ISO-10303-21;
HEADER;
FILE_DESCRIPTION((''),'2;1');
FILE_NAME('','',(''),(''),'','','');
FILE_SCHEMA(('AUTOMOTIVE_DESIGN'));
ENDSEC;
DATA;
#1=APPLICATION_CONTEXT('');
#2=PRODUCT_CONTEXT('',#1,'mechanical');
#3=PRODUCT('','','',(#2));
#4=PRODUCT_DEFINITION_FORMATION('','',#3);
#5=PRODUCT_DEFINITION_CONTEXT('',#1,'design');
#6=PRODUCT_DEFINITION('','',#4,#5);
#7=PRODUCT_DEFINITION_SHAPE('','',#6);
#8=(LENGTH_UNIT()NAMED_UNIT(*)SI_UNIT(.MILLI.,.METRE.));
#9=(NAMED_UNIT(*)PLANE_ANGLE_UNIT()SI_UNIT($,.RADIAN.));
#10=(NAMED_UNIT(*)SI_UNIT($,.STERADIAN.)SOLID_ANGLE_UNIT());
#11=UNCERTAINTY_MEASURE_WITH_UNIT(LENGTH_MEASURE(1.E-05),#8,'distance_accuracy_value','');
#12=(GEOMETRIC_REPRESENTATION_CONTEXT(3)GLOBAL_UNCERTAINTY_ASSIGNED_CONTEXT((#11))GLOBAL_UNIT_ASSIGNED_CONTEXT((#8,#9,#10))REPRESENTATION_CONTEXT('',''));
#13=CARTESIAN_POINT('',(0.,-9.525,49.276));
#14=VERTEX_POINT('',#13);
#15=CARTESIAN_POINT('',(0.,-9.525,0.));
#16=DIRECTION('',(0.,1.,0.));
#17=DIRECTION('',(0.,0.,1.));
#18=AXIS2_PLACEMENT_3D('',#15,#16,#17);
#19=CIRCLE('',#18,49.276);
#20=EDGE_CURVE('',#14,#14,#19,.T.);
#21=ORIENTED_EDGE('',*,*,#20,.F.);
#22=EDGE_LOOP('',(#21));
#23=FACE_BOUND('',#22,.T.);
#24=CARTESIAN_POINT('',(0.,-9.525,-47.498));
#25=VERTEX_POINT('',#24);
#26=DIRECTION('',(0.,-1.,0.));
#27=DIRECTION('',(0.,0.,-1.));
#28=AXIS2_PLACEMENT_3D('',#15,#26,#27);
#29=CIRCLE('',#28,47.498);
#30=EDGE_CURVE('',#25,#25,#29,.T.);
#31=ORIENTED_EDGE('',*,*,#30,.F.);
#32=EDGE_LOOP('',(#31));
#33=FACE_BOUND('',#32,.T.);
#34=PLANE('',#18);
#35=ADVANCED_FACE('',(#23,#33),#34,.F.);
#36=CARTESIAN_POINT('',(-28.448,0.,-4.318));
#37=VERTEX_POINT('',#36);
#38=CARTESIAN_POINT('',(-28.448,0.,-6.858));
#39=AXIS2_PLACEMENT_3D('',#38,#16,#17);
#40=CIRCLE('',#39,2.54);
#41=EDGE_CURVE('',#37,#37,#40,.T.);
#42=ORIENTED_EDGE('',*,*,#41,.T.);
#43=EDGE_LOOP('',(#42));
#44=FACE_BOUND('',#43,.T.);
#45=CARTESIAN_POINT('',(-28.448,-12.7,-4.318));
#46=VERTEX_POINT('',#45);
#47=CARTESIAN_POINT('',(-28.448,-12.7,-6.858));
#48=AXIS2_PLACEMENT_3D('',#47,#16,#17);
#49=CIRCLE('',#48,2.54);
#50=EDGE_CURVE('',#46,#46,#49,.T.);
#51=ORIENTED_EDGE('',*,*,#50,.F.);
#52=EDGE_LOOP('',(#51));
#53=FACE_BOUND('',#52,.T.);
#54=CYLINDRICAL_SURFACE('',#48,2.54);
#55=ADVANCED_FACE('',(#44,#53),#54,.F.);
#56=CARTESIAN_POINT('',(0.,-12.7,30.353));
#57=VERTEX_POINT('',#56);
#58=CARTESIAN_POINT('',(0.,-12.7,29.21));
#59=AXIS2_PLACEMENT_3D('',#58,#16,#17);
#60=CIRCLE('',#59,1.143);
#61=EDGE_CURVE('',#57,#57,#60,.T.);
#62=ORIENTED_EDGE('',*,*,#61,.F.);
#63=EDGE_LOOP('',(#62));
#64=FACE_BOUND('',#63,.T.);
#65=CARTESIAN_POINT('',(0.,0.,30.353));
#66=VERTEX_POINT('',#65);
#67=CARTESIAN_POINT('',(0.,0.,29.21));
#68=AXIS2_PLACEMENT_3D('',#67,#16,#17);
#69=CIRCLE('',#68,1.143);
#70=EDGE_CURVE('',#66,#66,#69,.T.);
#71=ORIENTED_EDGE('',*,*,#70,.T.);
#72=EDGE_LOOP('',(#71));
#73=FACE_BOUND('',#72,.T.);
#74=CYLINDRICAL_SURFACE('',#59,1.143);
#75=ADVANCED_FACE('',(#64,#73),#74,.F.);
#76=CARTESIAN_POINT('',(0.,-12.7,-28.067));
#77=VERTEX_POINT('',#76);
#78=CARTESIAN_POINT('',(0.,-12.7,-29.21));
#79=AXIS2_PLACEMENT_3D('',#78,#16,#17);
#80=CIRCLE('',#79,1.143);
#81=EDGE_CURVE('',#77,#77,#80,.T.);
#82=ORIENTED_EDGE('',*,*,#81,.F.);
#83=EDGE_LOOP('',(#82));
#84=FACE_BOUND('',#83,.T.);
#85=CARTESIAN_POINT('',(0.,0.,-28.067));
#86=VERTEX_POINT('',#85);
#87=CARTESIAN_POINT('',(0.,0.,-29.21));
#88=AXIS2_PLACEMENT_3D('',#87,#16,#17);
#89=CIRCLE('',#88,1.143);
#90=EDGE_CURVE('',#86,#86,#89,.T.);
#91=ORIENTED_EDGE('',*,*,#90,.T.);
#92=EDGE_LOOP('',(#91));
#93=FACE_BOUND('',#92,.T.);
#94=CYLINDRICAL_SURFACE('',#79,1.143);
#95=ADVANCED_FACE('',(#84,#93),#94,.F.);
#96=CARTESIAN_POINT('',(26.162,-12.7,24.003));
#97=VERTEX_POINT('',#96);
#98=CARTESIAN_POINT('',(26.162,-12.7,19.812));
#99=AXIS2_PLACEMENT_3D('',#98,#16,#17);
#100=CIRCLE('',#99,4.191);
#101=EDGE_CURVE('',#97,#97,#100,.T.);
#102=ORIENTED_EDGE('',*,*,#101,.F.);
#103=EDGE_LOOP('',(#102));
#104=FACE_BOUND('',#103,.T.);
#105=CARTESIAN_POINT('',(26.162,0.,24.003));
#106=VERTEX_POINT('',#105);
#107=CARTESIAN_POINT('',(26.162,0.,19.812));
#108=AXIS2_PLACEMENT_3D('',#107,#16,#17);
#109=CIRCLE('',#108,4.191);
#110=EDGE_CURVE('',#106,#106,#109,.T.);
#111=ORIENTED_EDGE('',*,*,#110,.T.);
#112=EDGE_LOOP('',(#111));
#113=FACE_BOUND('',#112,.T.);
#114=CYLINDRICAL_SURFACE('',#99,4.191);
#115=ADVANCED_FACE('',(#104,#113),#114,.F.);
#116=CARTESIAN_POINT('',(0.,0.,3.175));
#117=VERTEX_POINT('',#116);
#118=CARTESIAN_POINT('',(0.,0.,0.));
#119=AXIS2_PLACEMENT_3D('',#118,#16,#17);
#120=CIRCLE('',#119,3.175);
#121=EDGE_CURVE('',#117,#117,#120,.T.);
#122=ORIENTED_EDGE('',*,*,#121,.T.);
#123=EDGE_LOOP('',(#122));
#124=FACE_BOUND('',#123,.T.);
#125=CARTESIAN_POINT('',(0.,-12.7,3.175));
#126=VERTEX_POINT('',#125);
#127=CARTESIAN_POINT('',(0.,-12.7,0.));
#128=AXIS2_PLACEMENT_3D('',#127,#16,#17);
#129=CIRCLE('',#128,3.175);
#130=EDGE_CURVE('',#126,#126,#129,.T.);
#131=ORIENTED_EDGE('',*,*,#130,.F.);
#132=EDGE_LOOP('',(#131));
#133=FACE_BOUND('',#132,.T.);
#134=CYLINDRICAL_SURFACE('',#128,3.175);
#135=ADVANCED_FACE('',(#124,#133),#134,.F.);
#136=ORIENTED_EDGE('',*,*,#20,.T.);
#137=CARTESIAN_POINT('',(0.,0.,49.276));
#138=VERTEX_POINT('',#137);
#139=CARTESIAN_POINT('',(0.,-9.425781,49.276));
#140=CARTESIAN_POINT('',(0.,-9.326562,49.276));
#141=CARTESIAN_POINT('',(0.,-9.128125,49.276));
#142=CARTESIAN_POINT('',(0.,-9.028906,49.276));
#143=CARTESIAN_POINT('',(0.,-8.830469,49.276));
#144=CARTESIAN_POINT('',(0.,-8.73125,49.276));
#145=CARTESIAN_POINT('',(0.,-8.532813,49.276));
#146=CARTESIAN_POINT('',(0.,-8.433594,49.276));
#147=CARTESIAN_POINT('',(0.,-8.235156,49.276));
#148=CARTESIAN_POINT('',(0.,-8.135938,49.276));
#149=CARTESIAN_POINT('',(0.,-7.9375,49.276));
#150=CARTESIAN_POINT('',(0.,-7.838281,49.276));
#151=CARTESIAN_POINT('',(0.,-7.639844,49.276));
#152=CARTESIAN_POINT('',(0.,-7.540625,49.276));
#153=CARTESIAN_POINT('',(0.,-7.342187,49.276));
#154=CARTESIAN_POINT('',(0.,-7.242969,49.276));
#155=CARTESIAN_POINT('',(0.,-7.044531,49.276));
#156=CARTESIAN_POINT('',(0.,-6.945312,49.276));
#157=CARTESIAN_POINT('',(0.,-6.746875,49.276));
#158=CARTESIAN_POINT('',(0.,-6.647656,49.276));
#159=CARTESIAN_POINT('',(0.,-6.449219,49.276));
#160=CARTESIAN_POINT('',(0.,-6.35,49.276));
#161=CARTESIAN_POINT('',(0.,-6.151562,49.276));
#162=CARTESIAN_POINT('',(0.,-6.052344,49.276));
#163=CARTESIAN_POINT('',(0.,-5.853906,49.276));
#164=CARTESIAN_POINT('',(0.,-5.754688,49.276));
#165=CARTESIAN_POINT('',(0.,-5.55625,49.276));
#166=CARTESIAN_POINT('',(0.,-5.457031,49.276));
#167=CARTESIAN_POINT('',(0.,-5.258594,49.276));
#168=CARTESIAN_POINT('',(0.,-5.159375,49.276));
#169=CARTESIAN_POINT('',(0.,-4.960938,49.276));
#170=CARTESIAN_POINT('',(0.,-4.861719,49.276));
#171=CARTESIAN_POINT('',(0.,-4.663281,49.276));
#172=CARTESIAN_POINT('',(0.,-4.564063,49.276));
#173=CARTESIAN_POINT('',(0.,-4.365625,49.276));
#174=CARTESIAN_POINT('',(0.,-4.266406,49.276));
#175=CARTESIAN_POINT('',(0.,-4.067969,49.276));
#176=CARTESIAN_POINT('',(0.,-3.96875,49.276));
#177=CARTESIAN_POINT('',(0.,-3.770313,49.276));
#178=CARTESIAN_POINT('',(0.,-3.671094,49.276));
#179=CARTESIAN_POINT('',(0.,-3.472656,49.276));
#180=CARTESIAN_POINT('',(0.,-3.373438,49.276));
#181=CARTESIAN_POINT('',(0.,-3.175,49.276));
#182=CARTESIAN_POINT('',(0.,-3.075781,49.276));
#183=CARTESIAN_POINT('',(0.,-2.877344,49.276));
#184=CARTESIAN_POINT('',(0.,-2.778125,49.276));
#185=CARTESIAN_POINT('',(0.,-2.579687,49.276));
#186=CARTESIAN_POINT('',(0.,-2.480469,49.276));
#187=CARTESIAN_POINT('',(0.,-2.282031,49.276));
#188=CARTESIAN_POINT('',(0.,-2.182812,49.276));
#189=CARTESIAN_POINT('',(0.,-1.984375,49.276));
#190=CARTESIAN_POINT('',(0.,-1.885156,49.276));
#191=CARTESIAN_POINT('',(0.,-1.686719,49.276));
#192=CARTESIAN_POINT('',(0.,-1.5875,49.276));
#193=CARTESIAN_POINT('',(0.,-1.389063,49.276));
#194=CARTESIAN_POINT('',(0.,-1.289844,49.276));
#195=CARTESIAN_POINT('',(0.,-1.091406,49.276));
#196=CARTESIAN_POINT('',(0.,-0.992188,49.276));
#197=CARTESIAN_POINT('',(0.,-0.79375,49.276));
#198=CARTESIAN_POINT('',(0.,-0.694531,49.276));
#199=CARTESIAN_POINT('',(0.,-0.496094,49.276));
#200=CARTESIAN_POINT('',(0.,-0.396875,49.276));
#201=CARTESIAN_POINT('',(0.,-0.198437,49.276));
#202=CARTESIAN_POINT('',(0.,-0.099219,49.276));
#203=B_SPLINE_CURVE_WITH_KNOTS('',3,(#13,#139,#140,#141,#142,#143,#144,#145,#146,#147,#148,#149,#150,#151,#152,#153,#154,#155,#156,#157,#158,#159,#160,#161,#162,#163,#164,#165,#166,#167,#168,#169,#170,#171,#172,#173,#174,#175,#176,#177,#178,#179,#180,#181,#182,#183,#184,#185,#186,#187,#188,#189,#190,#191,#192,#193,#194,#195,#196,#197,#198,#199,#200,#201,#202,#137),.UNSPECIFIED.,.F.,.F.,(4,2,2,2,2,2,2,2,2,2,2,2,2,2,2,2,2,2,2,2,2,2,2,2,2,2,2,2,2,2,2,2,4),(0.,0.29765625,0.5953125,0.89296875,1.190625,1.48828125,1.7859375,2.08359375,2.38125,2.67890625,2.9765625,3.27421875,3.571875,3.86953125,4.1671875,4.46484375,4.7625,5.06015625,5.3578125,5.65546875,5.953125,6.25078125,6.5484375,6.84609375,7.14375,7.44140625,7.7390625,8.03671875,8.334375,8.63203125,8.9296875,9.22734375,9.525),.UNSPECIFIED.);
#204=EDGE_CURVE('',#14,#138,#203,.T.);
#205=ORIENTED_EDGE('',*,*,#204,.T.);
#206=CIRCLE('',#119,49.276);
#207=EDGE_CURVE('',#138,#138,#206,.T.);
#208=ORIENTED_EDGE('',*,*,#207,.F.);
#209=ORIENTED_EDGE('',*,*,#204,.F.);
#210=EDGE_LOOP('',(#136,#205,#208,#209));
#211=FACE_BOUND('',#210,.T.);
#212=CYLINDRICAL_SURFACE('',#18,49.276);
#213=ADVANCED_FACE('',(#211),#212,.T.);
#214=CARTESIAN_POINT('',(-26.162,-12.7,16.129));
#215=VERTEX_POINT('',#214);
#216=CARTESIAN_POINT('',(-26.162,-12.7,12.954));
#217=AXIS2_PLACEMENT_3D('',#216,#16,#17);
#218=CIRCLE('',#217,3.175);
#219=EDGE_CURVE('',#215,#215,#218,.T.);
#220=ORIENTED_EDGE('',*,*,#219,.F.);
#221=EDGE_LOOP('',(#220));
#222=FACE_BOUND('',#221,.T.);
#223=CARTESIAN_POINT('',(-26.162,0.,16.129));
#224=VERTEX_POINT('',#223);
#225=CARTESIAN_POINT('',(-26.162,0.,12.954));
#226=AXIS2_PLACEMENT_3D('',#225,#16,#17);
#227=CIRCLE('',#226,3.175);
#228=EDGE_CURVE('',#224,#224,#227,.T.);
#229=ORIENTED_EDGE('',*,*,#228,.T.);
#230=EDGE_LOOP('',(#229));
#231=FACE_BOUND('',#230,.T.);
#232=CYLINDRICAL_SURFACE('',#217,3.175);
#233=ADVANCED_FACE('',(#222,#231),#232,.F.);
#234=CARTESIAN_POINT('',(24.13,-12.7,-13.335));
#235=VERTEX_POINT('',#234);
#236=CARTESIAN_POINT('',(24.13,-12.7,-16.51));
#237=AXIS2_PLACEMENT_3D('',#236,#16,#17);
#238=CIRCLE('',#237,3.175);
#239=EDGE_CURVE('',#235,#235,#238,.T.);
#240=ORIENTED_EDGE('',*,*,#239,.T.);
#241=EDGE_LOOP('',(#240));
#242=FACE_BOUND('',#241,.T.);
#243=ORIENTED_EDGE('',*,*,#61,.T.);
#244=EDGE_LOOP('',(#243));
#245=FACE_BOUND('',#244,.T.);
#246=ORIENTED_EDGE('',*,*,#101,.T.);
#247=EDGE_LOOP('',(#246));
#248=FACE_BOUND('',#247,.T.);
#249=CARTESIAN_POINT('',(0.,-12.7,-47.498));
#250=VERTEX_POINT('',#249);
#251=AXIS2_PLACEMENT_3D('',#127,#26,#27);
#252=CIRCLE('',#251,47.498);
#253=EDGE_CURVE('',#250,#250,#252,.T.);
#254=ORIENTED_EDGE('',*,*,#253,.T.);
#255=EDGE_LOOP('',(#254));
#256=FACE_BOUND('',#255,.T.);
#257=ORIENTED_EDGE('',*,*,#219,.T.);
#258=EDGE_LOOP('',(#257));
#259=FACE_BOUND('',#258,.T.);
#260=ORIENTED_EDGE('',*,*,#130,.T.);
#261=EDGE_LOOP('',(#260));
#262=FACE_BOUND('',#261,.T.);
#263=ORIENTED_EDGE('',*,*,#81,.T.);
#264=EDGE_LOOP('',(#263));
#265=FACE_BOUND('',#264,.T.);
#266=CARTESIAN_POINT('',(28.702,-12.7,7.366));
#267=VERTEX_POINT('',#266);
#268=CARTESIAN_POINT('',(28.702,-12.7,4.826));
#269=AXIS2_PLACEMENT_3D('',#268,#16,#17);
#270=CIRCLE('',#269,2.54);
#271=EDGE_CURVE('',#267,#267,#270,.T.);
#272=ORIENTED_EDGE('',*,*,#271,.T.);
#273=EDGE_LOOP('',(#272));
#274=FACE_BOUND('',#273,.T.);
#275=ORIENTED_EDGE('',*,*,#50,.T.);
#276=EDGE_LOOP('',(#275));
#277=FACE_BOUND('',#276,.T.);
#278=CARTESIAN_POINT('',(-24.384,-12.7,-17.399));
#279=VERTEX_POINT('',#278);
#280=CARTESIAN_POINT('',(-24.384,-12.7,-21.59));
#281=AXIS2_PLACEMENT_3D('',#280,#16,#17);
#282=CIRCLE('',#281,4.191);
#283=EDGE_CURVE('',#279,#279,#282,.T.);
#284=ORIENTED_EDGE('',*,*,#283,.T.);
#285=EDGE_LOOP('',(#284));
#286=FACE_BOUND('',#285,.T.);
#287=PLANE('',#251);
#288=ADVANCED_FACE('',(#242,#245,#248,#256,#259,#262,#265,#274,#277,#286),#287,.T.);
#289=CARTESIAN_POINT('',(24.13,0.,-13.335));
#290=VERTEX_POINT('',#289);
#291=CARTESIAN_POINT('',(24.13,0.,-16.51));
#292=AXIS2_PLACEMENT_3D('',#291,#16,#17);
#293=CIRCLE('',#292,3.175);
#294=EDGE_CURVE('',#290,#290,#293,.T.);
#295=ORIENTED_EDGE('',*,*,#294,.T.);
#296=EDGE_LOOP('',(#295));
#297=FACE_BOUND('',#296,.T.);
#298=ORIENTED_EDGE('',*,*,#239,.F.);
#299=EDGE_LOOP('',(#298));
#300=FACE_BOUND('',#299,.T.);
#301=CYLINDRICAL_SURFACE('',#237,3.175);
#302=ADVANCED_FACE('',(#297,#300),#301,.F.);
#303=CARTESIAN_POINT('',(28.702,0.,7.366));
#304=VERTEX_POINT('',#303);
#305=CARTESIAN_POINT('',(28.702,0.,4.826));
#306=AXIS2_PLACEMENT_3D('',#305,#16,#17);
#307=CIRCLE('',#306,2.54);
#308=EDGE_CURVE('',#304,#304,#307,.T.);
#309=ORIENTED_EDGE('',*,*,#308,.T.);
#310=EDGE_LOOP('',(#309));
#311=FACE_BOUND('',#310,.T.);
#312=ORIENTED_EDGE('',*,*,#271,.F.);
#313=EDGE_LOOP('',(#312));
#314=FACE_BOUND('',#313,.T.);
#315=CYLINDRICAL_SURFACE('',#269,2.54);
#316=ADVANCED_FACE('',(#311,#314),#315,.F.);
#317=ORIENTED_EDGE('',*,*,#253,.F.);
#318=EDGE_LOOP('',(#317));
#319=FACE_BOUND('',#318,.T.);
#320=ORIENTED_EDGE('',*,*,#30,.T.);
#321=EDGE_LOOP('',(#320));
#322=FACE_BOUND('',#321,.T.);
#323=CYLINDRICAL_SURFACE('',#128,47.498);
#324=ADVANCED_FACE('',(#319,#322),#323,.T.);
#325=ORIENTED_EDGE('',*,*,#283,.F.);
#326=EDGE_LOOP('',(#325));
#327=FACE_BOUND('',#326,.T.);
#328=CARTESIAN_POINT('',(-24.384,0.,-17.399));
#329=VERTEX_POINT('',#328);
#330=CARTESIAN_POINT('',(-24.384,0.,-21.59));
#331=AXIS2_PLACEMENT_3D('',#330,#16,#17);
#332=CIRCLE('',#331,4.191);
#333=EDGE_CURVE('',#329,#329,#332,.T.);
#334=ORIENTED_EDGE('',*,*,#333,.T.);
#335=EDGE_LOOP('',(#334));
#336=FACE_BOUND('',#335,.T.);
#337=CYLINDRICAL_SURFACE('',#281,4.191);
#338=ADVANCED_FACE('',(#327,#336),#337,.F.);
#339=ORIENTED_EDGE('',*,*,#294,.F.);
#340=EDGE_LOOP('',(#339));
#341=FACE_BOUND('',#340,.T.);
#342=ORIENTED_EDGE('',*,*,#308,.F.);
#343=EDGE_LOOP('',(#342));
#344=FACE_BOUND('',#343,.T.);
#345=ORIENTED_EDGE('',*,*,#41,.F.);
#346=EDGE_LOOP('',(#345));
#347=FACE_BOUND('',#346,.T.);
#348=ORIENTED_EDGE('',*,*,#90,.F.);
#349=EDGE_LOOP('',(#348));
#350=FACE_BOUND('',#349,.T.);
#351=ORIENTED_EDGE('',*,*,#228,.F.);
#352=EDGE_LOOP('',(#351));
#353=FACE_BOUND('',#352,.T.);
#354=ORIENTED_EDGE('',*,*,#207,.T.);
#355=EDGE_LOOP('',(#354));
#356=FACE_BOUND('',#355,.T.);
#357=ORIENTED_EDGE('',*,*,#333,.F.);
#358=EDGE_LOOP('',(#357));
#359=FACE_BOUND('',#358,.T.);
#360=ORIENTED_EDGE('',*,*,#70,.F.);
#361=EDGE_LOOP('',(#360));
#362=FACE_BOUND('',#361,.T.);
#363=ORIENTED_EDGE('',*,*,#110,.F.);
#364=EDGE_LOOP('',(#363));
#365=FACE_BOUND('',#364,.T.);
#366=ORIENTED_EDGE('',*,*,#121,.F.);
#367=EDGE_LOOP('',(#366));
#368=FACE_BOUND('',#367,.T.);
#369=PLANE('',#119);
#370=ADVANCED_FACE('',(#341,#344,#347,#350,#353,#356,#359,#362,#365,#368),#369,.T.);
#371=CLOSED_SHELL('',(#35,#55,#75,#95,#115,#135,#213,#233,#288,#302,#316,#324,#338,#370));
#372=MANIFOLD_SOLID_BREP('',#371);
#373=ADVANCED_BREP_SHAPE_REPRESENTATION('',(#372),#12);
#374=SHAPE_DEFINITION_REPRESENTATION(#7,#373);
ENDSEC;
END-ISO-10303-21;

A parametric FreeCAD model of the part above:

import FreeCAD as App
import Part
import Sketcher
from FreeCAD import Vector
Q = App.Units.Quantity

doc = App.newDocument("Part")
body = doc.addObject("PartDesign::Body", "Body")

sketch1 = body.newObject("Sketcher::SketchObject", "Sketch")
sketch1.AttachmentSupport = (doc.getObject("XZ_Plane"), [""])
sketch1.MapMode = "FlatFace"
sketch1.addGeometry(Part.Circle(Vector(0, 0, 0), Vector(0, 0, 1), 49.276), False)
sketch1.addConstraint(Sketcher.Constraint("Coincident", 0, 3, -1, 1))
sketch1.addConstraint(Sketcher.Constraint("Diameter", 0, Q("3.88 in")))
pad1 = body.newObject("PartDesign::Pad", "Pad")
pad1.Profile = sketch1
pad1.Length = Q("0.375 in")

sketch2 = body.newObject("Sketcher::SketchObject", "Sketch001")
sketch2.AttachmentSupport = (doc.getObject("XZ_Plane"), [""])
sketch2.MapMode = "FlatFace"
sketch2.AttachmentOffset = App.Placement(Vector(0, 0, 0.375 * 25.4), App.Rotation())
sketch2.addGeometry(Part.Circle(Vector(0, 0, 0), Vector(0, 0, 1), 47.498), False)
sketch2.addConstraint(Sketcher.Constraint("Coincident", 0, 3, -1, 1))
sketch2.addConstraint(Sketcher.Constraint("Diameter", 0, Q("3.74 in")))
pad2 = body.newObject("PartDesign::Pad", "Pad001")
pad2.Profile = sketch2
pad2.Length = Q("0.125 in")

sketch3 = body.newObject("Sketcher::SketchObject", "Sketch002")
sketch3.AttachmentSupport = (doc.getObject("XZ_Plane"), [""])
sketch3.MapMode = "FlatFace"
sketch3.addGeometry(Part.Circle(Vector(0, 0, 0), Vector(0, 0, 1), 3.175), False)
sketch3.addGeometry(Part.Circle(Vector(0, -29.21, 0), Vector(0, 0, 1), 1.143), False)
sketch3.addGeometry(Part.Circle(Vector(0, 29.21, 0), Vector(0, 0, 1), 1.143), False)
sketch3.addGeometry(Part.Circle(Vector(-24.384, -21.59, 0), Vector(0, 0, 1), 4.191), False)
sketch3.addGeometry(Part.Circle(Vector(-28.448, -6.858, 0), Vector(0, 0, 1), 2.54), False)
sketch3.addGeometry(Part.Circle(Vector(-26.162, 12.954, 0), Vector(0, 0, 1), 3.175), False)
sketch3.addGeometry(Part.Circle(Vector(26.162, 19.812, 0), Vector(0, 0, 1), 4.191), False)
sketch3.addGeometry(Part.Circle(Vector(28.702, 4.826, 0), Vector(0, 0, 1), 2.54), False)
sketch3.addGeometry(Part.Circle(Vector(24.13, -16.51, 0), Vector(0, 0, 1), 3.175), False)
sketch3.addConstraint(Sketcher.Constraint("Coincident", 0, 3, -1, 1))
sketch3.addConstraint(Sketcher.Constraint("Equal", 1, 2))
sketch3.addConstraint(Sketcher.Constraint("Equal", 0, 5))
sketch3.addConstraint(Sketcher.Constraint("Equal", 3, 6))
sketch3.addConstraint(Sketcher.Constraint("Equal", 4, 7))
sketch3.addConstraint(Sketcher.Constraint("Equal", 5, 8))
sketch3.addConstraint(Sketcher.Constraint("Symmetric", 1, 3, 2, 3, -1, 1))
sketch3.addConstraint(Sketcher.Constraint("PointOnObject", 1, 3, -2))
sketch3.addConstraint(Sketcher.Constraint("Diameter", 4, Q("0.2 in")))
sketch3.addConstraint(Sketcher.Constraint("Diameter", 0, Q("0.25 in")))
sketch3.addConstraint(Sketcher.Constraint("Diameter", 1, Q("0.09 in")))
sketch3.addConstraint(Sketcher.Constraint("Diameter", 3, Q("0.33 in")))
sketch3.addConstraint(Sketcher.Constraint("DistanceY", 3, 3, 2, 3, Q("2 in")))
sketch3.addConstraint(Sketcher.Constraint("DistanceY", 1, 3, 2, 3, Q("2.3 in")))
sketch3.addConstraint(Sketcher.Constraint("DistanceX", 6, 3, 7, 3, Q("0.1 in")))
sketch3.addConstraint(Sketcher.Constraint("DistanceY", 1, 3, 8, 3, Q("0.5 in")))
sketch3.addConstraint(Sketcher.Constraint("DistanceX", 3, 3, -1, 1, Q("0.96 in")))
sketch3.addConstraint(Sketcher.Constraint("DistanceX", 4, 3, -1, 1, Q("1.12 in")))
sketch3.addConstraint(Sketcher.Constraint("DistanceY", 4, 3, -1, 1, Q("0.27 in")))
sketch3.addConstraint(Sketcher.Constraint("DistanceX", 5, 3, -1, 1, Q("1.03 in")))
sketch3.addConstraint(Sketcher.Constraint("DistanceY", -1, 1, 5, 3, Q("0.51 in")))
sketch3.addConstraint(Sketcher.Constraint("DistanceX", -1, 1, 6, 3, Q("1.03 in")))
sketch3.addConstraint(Sketcher.Constraint("DistanceY", -1, 1, 6, 3, Q("0.78 in")))
sketch3.addConstraint(Sketcher.Constraint("DistanceY", -1, 1, 7, 3, Q("0.19 in")))
sketch3.addConstraint(Sketcher.Constraint("DistanceX", -1, 1, 8, 3, Q("0.95 in")))
pocket1 = body.newObject("PartDesign::Pocket", "Pocket")
pocket1.Profile = sketch3
pocket1.Type = "ThroughAll"
pocket1.Reversed = True

doc.recompute()
